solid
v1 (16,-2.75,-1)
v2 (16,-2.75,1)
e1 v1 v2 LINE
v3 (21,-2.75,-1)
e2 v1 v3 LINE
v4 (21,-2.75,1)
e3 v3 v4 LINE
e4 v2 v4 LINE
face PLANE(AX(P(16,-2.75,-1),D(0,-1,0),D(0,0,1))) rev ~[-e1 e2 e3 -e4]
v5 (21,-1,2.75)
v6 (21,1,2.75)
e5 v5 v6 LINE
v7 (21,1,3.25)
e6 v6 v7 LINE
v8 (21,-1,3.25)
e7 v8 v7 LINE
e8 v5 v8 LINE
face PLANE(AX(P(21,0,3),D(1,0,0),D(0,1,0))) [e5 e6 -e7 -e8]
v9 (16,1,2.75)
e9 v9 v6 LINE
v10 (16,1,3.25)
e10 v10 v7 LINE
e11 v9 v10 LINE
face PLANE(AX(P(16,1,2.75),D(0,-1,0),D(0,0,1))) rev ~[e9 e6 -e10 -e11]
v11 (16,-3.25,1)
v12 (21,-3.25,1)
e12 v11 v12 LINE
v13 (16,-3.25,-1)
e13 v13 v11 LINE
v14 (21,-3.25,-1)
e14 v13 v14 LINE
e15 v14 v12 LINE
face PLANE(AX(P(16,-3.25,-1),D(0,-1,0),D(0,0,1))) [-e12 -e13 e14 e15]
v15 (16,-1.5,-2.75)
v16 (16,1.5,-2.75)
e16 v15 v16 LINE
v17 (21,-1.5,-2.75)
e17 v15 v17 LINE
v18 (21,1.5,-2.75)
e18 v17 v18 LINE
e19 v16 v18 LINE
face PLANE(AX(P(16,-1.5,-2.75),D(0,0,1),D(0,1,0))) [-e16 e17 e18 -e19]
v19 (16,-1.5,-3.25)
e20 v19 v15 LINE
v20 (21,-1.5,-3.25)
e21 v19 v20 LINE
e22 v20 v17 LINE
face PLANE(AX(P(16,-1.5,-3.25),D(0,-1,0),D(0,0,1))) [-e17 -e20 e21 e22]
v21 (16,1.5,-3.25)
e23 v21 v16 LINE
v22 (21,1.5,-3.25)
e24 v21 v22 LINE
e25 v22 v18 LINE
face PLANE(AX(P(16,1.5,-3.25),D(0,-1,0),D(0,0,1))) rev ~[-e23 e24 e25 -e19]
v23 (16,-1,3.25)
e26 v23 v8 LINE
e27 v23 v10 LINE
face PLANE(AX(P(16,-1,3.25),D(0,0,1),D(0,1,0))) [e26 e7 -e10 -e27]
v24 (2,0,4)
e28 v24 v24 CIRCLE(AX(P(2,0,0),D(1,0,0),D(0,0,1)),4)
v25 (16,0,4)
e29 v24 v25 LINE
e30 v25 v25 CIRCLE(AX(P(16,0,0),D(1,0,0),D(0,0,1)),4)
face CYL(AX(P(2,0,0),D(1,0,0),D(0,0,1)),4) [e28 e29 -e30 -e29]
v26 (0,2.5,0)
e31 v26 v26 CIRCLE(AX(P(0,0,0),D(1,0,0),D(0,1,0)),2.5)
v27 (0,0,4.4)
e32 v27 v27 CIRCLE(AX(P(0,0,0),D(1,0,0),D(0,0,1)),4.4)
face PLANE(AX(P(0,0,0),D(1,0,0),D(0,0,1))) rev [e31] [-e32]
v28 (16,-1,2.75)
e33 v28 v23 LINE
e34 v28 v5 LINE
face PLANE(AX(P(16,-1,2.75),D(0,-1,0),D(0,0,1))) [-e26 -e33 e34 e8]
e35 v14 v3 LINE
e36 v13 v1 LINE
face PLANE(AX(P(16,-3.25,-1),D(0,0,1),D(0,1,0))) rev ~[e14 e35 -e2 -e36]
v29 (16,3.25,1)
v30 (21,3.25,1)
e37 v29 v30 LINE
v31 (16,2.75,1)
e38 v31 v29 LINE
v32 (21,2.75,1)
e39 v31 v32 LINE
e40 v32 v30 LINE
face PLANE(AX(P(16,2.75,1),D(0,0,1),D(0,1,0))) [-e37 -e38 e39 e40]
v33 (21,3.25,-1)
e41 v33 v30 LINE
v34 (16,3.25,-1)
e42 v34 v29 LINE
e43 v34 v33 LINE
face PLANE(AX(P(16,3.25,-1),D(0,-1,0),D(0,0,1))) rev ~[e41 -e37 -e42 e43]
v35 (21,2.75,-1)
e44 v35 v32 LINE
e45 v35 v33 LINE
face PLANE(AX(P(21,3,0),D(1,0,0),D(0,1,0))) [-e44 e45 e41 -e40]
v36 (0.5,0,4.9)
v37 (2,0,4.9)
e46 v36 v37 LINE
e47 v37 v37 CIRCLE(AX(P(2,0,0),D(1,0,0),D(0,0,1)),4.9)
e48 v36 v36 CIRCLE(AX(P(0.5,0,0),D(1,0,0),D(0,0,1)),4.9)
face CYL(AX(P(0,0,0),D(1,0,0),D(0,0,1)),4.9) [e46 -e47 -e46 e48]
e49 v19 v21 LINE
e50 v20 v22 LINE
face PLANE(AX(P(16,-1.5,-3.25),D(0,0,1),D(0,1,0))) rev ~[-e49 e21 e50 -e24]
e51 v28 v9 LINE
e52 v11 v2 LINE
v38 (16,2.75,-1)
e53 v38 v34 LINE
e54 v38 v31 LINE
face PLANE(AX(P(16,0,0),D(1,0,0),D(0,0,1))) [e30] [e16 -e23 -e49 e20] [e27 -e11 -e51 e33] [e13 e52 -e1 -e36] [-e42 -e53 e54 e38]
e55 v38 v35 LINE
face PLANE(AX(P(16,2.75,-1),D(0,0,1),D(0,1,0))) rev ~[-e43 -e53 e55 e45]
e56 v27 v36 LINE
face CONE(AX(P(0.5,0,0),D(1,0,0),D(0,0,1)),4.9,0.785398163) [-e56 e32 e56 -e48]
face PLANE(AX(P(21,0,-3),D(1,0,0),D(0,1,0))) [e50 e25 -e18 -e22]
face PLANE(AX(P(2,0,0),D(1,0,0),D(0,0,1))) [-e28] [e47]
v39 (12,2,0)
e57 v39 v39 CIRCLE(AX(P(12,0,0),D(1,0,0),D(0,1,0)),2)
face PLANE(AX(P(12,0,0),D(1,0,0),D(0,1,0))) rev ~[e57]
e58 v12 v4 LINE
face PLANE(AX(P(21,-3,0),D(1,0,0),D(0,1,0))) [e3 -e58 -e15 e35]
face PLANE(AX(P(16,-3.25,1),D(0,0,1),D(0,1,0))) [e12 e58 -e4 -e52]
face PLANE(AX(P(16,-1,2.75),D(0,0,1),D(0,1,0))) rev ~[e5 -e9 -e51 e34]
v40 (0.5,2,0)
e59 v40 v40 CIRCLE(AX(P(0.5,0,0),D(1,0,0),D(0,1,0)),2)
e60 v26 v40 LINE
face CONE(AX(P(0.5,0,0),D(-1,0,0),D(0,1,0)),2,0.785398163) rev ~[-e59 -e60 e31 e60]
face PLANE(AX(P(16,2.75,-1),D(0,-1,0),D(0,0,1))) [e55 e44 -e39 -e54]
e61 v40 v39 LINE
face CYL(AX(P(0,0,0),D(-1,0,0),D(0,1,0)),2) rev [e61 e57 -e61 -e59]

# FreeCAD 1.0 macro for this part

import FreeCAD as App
import Part
import Sketcher
from FreeCAD import Vector


def edges_at(feature, points):
    """Names of the edges that pass closest to the given points."""
    edges = feature.Shape.Edges
    near = lambda p: min(range(len(edges)), key=lambda i: edges[i].distToShape(Part.Vertex(*p))[0])
    return sorted({f"Edge{near(p) + 1}" for p in points})


def add_polygon(sketch, points):
    """Adds a closed chain of lines whose ends are joined by coincident constraints."""
    first, n = sketch.GeometryCount, len(points)
    for a, b in zip(points, points[1:] + points[:1]):
        sketch.addGeometry(Part.LineSegment(App.Vector(*a, 0), App.Vector(*b, 0)), False)
    for i in range(n):
        sketch.addConstraint(Sketcher.Constraint("Coincident", first + i, 2, first + (i + 1) % n, 1))

doc = App.newDocument("Part")
params = doc.addObject("Spreadsheet::Sheet", "Params")
for row, (alias, value) in enumerate([
    ("sketch1_width", "16 mm"),
    ("sketch1_width2", "14 mm"),
    ("sketch1_height", "4 mm"),
    ("sketch1_height2", "4.9 mm"),
    ("revolution_angle", "360 deg"),
    ("sketch2_width", "3 mm"),
    ("sketch2_width2", "2 mm"),
    ("sketch2_width3", "0.5 mm"),
    ("pad1_length", "5 mm"),
    ("sketch3_diameter", "4 mm"),
    ("pocket1_length", "12 mm"),
    ("chamfer_size", "0.5 mm"),
], start=1):
    params.set(f"A{row}", alias)
    params.set(f"B{row}", "=" + value)
    params.setAlias(f"B{row}", alias)

body = doc.addObject("PartDesign::Body", "Body")

# Sketch on XZ plane
sketch1 = body.newObject("Sketcher::SketchObject", "Sketch")
sketch1.AttachmentSupport = (doc.getObject("XZ_Plane"), [""])
sketch1.MapMode = "FlatFace"
add_polygon(sketch1, [(0, 4.9), (0, 0), (16, 0), (16, 4), (2, 4), (2, 4.9)])  # lines 0-5
sketch1.addConstraint(Sketcher.Constraint("Vertical", 0))
sketch1.addConstraint(Sketcher.Constraint("Horizontal", 1))
sketch1.addConstraint(Sketcher.Constraint("Vertical", 2))
sketch1.addConstraint(Sketcher.Constraint("Horizontal", 3))
sketch1.addConstraint(Sketcher.Constraint("Vertical", 4))
sketch1.addConstraint(Sketcher.Constraint("Horizontal", 5))
sketch1.addConstraint(Sketcher.Constraint("Coincident", 0, 2, -1, 1))
sketch1.addConstraint(Sketcher.Constraint("DistanceX", 1, 1, 1, 2, 16.0))
sketch1.addConstraint(Sketcher.Constraint("DistanceX", 3, 2, 3, 1, 14.0))
sketch1.addConstraint(Sketcher.Constraint("DistanceY", 2, 1, 2, 2, 4.0))
sketch1.addConstraint(Sketcher.Constraint("DistanceY", 0, 2, 0, 1, 4.9))
sketch1.setExpression("Constraints[13]", "Params.sketch1_width")
sketch1.setExpression("Constraints[14]", "Params.sketch1_width2")
sketch1.setExpression("Constraints[15]", "Params.sketch1_height")
sketch1.setExpression("Constraints[16]", "Params.sketch1_height2")
revolution = body.newObject("PartDesign::Revolution", "Revolution")
revolution.Profile = sketch1
revolution.ReferenceAxis = (sketch1, ["H_Axis"])
revolution.setExpression("Angle", "Params.revolution_angle")

# Sketch on YZ plane
sketch2 = body.newObject("Sketcher::SketchObject", "Sketch001")
sketch2.AttachmentSupport = (doc.getObject("YZ_Plane"), [""])
sketch2.MapMode = "FlatFace"
sketch2.AttachmentOffset = App.Placement(Vector(0, 0, 16), App.Rotation())
add_polygon(sketch2, [(-1.5, -2.75), (-1.5, -3.25), (1.5, -3.25), (1.5, -2.75)])  # lines 0-3
add_polygon(sketch2, [(-1, 3.25), (-1, 2.75), (1, 2.75), (1, 3.25)])  # lines 4-7
add_polygon(sketch2, [(2.75, 1), (2.75, -1), (3.25, -1), (3.25, 1)])  # lines 8-11
add_polygon(sketch2, [(-3.25, 1), (-3.25, -1), (-2.75, -1), (-2.75, 1)])  # lines 12-15
sketch2.addConstraint(Sketcher.Constraint("Vertical", 0))
sketch2.addConstraint(Sketcher.Constraint("Horizontal", 1))
sketch2.addConstraint(Sketcher.Constraint("Vertical", 2))
sketch2.addConstraint(Sketcher.Constraint("Horizontal", 3))
sketch2.addConstraint(Sketcher.Constraint("Vertical", 4))
sketch2.addConstraint(Sketcher.Constraint("Horizontal", 5))
sketch2.addConstraint(Sketcher.Constraint("Vertical", 6))
sketch2.addConstraint(Sketcher.Constraint("Horizontal", 7))
sketch2.addConstraint(Sketcher.Constraint("Vertical", 8))
sketch2.addConstraint(Sketcher.Constraint("Horizontal", 9))
sketch2.addConstraint(Sketcher.Constraint("Vertical", 10))
sketch2.addConstraint(Sketcher.Constraint("Horizontal", 11))
sketch2.addConstraint(Sketcher.Constraint("Vertical", 12))
sketch2.addConstraint(Sketcher.Constraint("Horizontal", 13))
sketch2.addConstraint(Sketcher.Constraint("Vertical", 14))
sketch2.addConstraint(Sketcher.Constraint("Horizontal", 15))
sketch2.addConstraint(Sketcher.Constraint("Symmetric", 10, 2, 12, 2, -1, 1))
sketch2.addConstraint(Sketcher.Constraint("Symmetric", 8, 2, 14, 2, -1, 1))
sketch2.addConstraint(Sketcher.Constraint("Horizontal", 9, 2, 12, 2))
sketch2.addConstraint(Sketcher.Constraint("Equal", 15, 0))
sketch2.addConstraint(Sketcher.Constraint("Equal", 2, 4))
sketch2.addConstraint(Sketcher.Constraint("Equal", 7, 8))
sketch2.addConstraint(Sketcher.Constraint("DistanceX", 1, 1, 1, 2, 3.0))
sketch2.addConstraint(Sketcher.Constraint("DistanceX", 5, 1, 5, 2, 2.0))
sketch2.addConstraint(Sketcher.Constraint("DistanceX", 9, 1, 9, 2, 0.5))
sketch2.addConstraint(Sketcher.Constraint("DistanceX", 4, 2, -1, 1, 1.0))
sketch2.addConstraint(Sketcher.Constraint("DistanceY", 0, 2, 4, 2, 6.0))
sketch2.addConstraint(Sketcher.Constraint("DistanceX", 0, 2, -1, 1, 1.5))
sketch2.addConstraint(Sketcher.Constraint("DistanceY", 0, 2, -1, 1, 3.25))
sketch2.addConstraint(Sketcher.Constraint("DistanceX", -1, 1, 8, 2, 2.75))
sketch2.setExpression("Constraints[38]", "Params.sketch2_width")
sketch2.setExpression("Constraints[39]", "Params.sketch2_width2")
sketch2.setExpression("Constraints[40]", "Params.sketch2_width3")
pad1 = body.newObject("PartDesign::Pad", "Pad")
pad1.Profile = sketch2
pad1.setExpression("Length", "Params.pad1_length")

# Sketch on YZ plane
sketch3 = body.newObject("Sketcher::SketchObject", "Sketch002")
sketch3.AttachmentSupport = (doc.getObject("YZ_Plane"), [""])
sketch3.MapMode = "FlatFace"
sketch3.addGeometry(Part.Circle(Vector(0, 0, 0), Vector(0, 0, 1), 2), False)
sketch3.addConstraint(Sketcher.Constraint("Coincident", 0, 3, -1, 1))
sketch3.addConstraint(Sketcher.Constraint("Diameter", 0, 4.0))
sketch3.setExpression("Constraints[1]", "Params.sketch3_diameter")
pocket1 = body.newObject("PartDesign::Pocket", "Pocket")
pocket1.Profile = sketch3
pocket1.setExpression("Length", "Params.pocket1_length")
pocket1.Reversed = True
doc.recompute()

chamfer = body.newObject("PartDesign::Chamfer", "Chamfer")
chamfer.Base = (pocket1, edges_at(pocket1, [(0, 0, -4.9), (0, -2, 0)]))
chamfer.setExpression("Size", "Params.chamfer_size")

doc.recompute()
